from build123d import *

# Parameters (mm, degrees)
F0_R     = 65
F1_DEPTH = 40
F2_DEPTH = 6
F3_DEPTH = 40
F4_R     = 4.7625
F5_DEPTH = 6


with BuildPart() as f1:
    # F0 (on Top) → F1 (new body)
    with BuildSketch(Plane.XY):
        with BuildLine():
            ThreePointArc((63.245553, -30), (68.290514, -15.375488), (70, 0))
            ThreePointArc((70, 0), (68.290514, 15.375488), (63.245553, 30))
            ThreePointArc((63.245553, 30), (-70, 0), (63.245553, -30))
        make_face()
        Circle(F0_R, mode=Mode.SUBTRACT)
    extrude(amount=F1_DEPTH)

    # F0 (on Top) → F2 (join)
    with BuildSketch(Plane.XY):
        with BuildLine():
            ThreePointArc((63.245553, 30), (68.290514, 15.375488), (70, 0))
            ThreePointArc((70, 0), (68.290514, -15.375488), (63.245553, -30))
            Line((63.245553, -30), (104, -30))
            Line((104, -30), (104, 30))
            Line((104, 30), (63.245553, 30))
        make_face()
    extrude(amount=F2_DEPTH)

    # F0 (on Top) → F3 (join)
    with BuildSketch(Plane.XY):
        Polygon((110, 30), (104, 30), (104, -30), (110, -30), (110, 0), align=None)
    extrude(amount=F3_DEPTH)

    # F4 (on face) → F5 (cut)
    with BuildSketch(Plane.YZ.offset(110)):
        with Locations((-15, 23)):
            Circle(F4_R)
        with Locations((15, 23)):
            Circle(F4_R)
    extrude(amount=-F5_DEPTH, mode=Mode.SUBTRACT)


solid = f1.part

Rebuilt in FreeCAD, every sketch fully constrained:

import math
import FreeCAD as App
import Part
import Sketcher
from FreeCAD import Vector

doc = App.newDocument("Part")
body = doc.addObject("PartDesign::Body", "Body")

# Sketch on XY plane
sketch1 = doc.addObject("Sketcher::SketchObject", "Sketch")
body.addObject(sketch1)
sketch1.AttachmentSupport = (doc.XY_Plane, [""])
sketch1.MapMode = "FlatFace"
sketch1.addGeometry([
    Part.ArcOfCircle(Part.Circle(Vector(0, 0, 0), Vector(0, 0, 1), 70), math.radians(-25), math.radians(0)),
    Part.ArcOfCircle(Part.Circle(Vector(0, 0, 0), Vector(0, 0, 1), 70), math.radians(0), math.radians(25)),
    Part.ArcOfCircle(Part.Circle(Vector(0, 0, 0), Vector(0, 0, 1), 70), math.radians(25), math.radians(335)),
    Part.Circle(Vector(0, 0, 0), Vector(0, 0, 1), 65),
], False)
sketch1.addConstraint([
    Sketcher.Constraint("Tangent", 0, 2, 1, 1),
    Sketcher.Constraint("Tangent", 1, 2, 2, 1),
    Sketcher.Constraint("Tangent", 2, 2, 0, 1),
    Sketcher.Constraint("Coincident", 2, 3, -1, 1),
    Sketcher.Constraint("Coincident", 3, 3, -1, 1),
    Sketcher.Constraint("PointOnObject", 0, 2, -1),
    Sketcher.Constraint("Vertical", 1, 2, 2, 2),
    Sketcher.Constraint("Diameter", 3, 130.0),
    Sketcher.Constraint("Radius", 2, 70.0),
    Sketcher.Constraint("DistanceY", -1, 1, 1, 2, 30.0),
])
pad1 = doc.addObject("PartDesign::Pad", "Pad")
body.addObject(pad1)
pad1.Profile = sketch1
pad1.Length = 40

# Sketch on XY plane
sketch2 = doc.addObject("Sketcher::SketchObject", "Sketch001")
body.addObject(sketch2)
sketch2.AttachmentSupport = (doc.XY_Plane, [""])
sketch2.MapMode = "FlatFace"
sketch2.addGeometry([
    Part.ArcOfCircle(Part.Circle(Vector(0, 0, 0), Vector(0, 0, 1), 70), math.radians(0), math.radians(25)),  # 0
    Part.ArcOfCircle(Part.Circle(Vector(0, 0, 0), Vector(0, 0, 1), 70), math.radians(-25), math.radians(0)),  # 1
    Part.LineSegment(Vector(63, -30, 0), Vector(104, -30, 0)),  # 2
    Part.LineSegment(Vector(104, -30, 0), Vector(104, 30, 0)),  # 3
    Part.LineSegment(Vector(104, 30, 0), Vector(63, 30, 0)),  # 4
], False)
sketch2.addConstraint([
    Sketcher.Constraint("Tangent", 0, 1, 1, 2),
    Sketcher.Constraint("Coincident", 1, 1, 2, 1),
    Sketcher.Constraint("Coincident", 2, 2, 3, 1),
    Sketcher.Constraint("Coincident", 3, 2, 4, 1),
    Sketcher.Constraint("Coincident", 4, 2, 0, 2),
    Sketcher.Constraint("Horizontal", 2),
    Sketcher.Constraint("Vertical", 3),
    Sketcher.Constraint("Horizontal", 4),
    Sketcher.Constraint("Equal", 0, 1),
    Sketcher.Constraint("Symmetric", 1, 1, 4, 2, -1),
    Sketcher.Constraint("PointOnObject", 0, 1, -1),
    Sketcher.Constraint("DistanceY", 3, 1, 3, 2, 60.0),
    Sketcher.Constraint("DistanceX", -1, 1, 0, 1, 70.0),
    Sketcher.Constraint("DistanceX", -1, 1, 2, 2, 104.0),
    Sketcher.Constraint("Radius", 0, 70.000015),
])
pad2 = doc.addObject("PartDesign::Pad", "Pad001")
body.addObject(pad2)
pad2.Profile = sketch2
pad2.Length = 6

# Sketch on XY plane
sketch3 = doc.addObject("Sketcher::SketchObject", "Sketch002")
body.addObject(sketch3)
sketch3.AttachmentSupport = (doc.XY_Plane, [""])
sketch3.MapMode = "FlatFace"
sketch3.addGeometry([
    Part.LineSegment(Vector(110, 30, 0), Vector(104, 30, 0)),
    Part.LineSegment(Vector(104, 30, 0), Vector(104, -30, 0)),
    Part.LineSegment(Vector(104, -30, 0), Vector(110, -30, 0)),
    Part.LineSegment(Vector(110, -30, 0), Vector(110, 30, 0)),
], False)
sketch3.addConstraint([
    Sketcher.Constraint("Coincident", 0, 2, 1, 1),
    Sketcher.Constraint("Coincident", 1, 2, 2, 1),
    Sketcher.Constraint("Coincident", 2, 2, 3, 1),
    Sketcher.Constraint("Coincident", 3, 2, 0, 1),
    Sketcher.Constraint("Horizontal", 0),
    Sketcher.Constraint("Vertical", 1),
    Sketcher.Constraint("Horizontal", 2),
    Sketcher.Constraint("Vertical", 3),
    Sketcher.Constraint("DistanceX", 0, 2, 0, 1, 6.0),
    Sketcher.Constraint("DistanceY", 1, 2, 1, 1, 60.0),
    Sketcher.Constraint("DistanceX", -1, 1, 0, 2, 104.0),
    Sketcher.Constraint("DistanceY", -1, 1, 0, 2, 30.0),
])
pad3 = doc.addObject("PartDesign::Pad", "Pad002")
body.addObject(pad3)
pad3.Profile = sketch3
pad3.Length = 40

# Sketch on YZ plane
sketch4 = doc.addObject("Sketcher::SketchObject", "Sketch003")
body.addObject(sketch4)
sketch4.AttachmentSupport = (doc.YZ_Plane, [""])
sketch4.MapMode = "FlatFace"
sketch4.AttachmentOffset = App.Placement(Vector(0, 0, 110), App.Rotation())
sketch4.addGeometry([
    Part.Circle(Vector(-15, 23, 0), Vector(0, 0, 1), 4.8),
    Part.Circle(Vector(15, 23, 0), Vector(0, 0, 1), 4.8),
], False)
sketch4.addConstraint([
    Sketcher.Constraint("Equal", 0, 1),
    Sketcher.Constraint("Symmetric", 0, 3, 1, 3, -2),
    Sketcher.Constraint("Diameter", 0, 9.525),
    Sketcher.Constraint("DistanceX", 0, 3, -1, 1, 15.0),
    Sketcher.Constraint("DistanceY", -1, 1, 0, 3, 23.0),
])
pocket1 = doc.addObject("PartDesign::Pocket", "Pocket")
body.addObject(pocket1)
pocket1.Profile = sketch4
pocket1.Length = 6

doc.recompute()
